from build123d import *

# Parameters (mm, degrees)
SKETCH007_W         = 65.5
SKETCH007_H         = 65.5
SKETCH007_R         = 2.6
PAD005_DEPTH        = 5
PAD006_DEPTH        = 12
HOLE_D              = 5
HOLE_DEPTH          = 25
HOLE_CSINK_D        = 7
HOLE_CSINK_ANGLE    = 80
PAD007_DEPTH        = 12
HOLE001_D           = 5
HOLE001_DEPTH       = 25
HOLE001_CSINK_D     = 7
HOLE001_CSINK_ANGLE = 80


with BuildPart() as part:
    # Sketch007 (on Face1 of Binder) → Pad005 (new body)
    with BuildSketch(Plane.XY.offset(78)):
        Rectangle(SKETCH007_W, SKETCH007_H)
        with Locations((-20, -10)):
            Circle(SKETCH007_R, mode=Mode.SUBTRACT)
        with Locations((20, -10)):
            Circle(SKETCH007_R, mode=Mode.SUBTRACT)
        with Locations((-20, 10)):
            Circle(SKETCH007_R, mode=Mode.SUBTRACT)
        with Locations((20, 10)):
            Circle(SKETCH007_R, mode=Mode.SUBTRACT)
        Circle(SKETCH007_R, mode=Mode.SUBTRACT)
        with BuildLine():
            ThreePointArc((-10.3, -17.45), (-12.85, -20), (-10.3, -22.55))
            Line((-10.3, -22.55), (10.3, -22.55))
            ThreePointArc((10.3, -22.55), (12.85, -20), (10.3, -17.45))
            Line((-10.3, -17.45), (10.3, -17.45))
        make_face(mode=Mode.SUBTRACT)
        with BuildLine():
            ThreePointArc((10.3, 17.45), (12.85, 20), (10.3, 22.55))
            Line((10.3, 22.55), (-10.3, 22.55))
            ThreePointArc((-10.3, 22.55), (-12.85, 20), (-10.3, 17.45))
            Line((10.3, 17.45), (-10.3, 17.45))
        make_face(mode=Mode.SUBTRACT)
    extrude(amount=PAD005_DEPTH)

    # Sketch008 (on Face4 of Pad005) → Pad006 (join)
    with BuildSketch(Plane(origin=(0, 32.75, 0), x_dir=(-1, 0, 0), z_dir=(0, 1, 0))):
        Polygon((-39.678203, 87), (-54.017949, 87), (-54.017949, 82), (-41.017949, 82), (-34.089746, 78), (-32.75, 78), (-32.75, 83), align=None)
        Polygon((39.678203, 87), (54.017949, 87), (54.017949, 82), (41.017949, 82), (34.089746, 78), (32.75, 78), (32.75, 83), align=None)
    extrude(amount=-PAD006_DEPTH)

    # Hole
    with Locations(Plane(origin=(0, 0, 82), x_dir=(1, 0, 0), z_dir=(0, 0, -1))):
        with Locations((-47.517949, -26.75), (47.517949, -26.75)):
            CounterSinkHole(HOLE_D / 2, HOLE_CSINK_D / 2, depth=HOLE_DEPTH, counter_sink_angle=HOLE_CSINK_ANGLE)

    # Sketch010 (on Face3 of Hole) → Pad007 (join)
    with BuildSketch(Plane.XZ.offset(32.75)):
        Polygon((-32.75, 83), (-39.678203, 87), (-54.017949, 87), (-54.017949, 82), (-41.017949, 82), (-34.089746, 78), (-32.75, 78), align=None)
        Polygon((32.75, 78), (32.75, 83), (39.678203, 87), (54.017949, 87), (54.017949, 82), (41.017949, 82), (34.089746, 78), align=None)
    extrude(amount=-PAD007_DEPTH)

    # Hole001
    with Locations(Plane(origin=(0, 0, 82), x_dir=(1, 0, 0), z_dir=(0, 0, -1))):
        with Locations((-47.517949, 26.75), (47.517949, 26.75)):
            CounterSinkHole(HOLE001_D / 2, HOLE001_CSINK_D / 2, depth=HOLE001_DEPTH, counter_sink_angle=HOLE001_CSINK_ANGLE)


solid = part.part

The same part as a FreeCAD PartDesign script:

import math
import FreeCAD as App
import Part
import Sketcher

V = App.Vector
Q = App.Units.Quantity

doc = App.newDocument("Part")
body = doc.addObject("PartDesign::Body", "Body")

sketch1 = body.newObject("Sketcher::SketchObject", "Sketch")
sketch1.AttachmentSupport = (doc.getObject("XY_Plane"), [""])
sketch1.MapMode = "FlatFace"
sketch1.AttachmentOffset = App.Placement(V(0, 0, 78), App.Rotation())
sketch1.addGeometry(Part.LineSegment(V(-32.8, 32.8, 0), V(-32.8, -32.8, 0)), False)
sketch1.addGeometry(Part.LineSegment(V(-32.8, -32.8, 0), V(32.8, -32.8, 0)), False)
sketch1.addGeometry(Part.LineSegment(V(32.8, -32.8, 0), V(32.8, 32.8, 0)), False)
sketch1.addGeometry(Part.LineSegment(V(32.8, 32.8, 0), V(-32.8, 32.8, 0)), False)
sketch1.addGeometry(Part.Circle(V(-20, -10, 0), V(0, 0, 1), 2.6), False)
sketch1.addGeometry(Part.ArcOfCircle(Part.Circle(V(-10.3, -20, 0), V(0, 0, 1), 2.5), math.radians(90), math.radians(270)), False)
sketch1.addGeometry(Part.LineSegment(V(-10.3, -17.4, 0), V(10.3, -17.4, 0)), False)
sketch1.addGeometry(Part.ArcOfCircle(Part.Circle(V(10.3, -20, 0), V(0, 0, 1), 2.5), math.radians(-90), math.radians(90)), False)
sketch1.addGeometry(Part.LineSegment(V(10.3, -22.6, 0), V(-10.3, -22.6, 0)), False)
sketch1.addGeometry(Part.Circle(V(20, -10, 0), V(0, 0, 1), 2.6), False)
sketch1.addGeometry(Part.Circle(V(-20, 10, 0), V(0, 0, 1), 2.6), False)
sketch1.addGeometry(Part.Circle(V(0, 0, 0), V(0, 0, 1), 2.6), False)
sketch1.addGeometry(Part.Circle(V(20, 10, 0), V(0, 0, 1), 2.6), False)
sketch1.addGeometry(Part.ArcOfCircle(Part.Circle(V(10.3, 20, 0), V(0, 0, 1), 2.5), math.radians(-90), math.radians(90)), False)
sketch1.addGeometry(Part.LineSegment(V(10.3, 17.4, 0), V(-10.3, 17.4, 0)), False)
sketch1.addGeometry(Part.ArcOfCircle(Part.Circle(V(-10.3, 20, 0), V(0, 0, 1), 2.5), math.radians(90), math.radians(270)), False)
sketch1.addGeometry(Part.LineSegment(V(-10.3, 22.6, 0), V(10.3, 22.6, 0)), False)
sketch1.addConstraint(Sketcher.Constraint("Coincident", 0, 2, 1, 1))
sketch1.addConstraint(Sketcher.Constraint("Coincident", 1, 2, 2, 1))
sketch1.addConstraint(Sketcher.Constraint("Coincident", 2, 2, 3, 1))
sketch1.addConstraint(Sketcher.Constraint("Coincident", 3, 2, 0, 1))
sketch1.addConstraint(Sketcher.Constraint("Tangent", 5, 1, 6, 1))
sketch1.addConstraint(Sketcher.Constraint("Tangent", 6, 2, 7, 2))
sketch1.addConstraint(Sketcher.Constraint("Tangent", 7, 1, 8, 1))
sketch1.addConstraint(Sketcher.Constraint("Tangent", 8, 2, 5, 2))
sketch1.addConstraint(Sketcher.Constraint("Tangent", 13, 1, 14, 1))
sketch1.addConstraint(Sketcher.Constraint("Tangent", 14, 2, 15, 2))
sketch1.addConstraint(Sketcher.Constraint("Tangent", 15, 1, 16, 1))
sketch1.addConstraint(Sketcher.Constraint("Tangent", 16, 2, 13, 2))
sketch1.addConstraint(Sketcher.Constraint("Vertical", 0))
sketch1.addConstraint(Sketcher.Constraint("Horizontal", 1))
sketch1.addConstraint(Sketcher.Constraint("Vertical", 2))
sketch1.addConstraint(Sketcher.Constraint("Horizontal", 3))
sketch1.addConstraint(Sketcher.Constraint("Horizontal", 6))
sketch1.addConstraint(Sketcher.Constraint("Horizontal", 8))
sketch1.addConstraint(Sketcher.Constraint("Horizontal", 14))
sketch1.addConstraint(Sketcher.Constraint("Horizontal", 16))
sketch1.addConstraint(Sketcher.Constraint("Coincident", 11, 3, -1, 1))
sketch1.addConstraint(Sketcher.Constraint("Equal", 4, 9))
sketch1.addConstraint(Sketcher.Constraint("Equal", 9, 10))
sketch1.addConstraint(Sketcher.Constraint("Equal", 10, 11))
sketch1.addConstraint(Sketcher.Constraint("Equal", 11, 12))
sketch1.addConstraint(Sketcher.Constraint("Equal", 7, 13))
sketch1.addConstraint(Sketcher.Constraint("Symmetric", 9, 3, 10, 3, -1, 1))
sketch1.addConstraint(Sketcher.Constraint("Symmetric", 4, 3, 12, 3, -1, 1))
sketch1.addConstraint(Sketcher.Constraint("Symmetric", 5, 3, 13, 3, -1, 1))
sketch1.addConstraint(Sketcher.Constraint("Symmetric", 0, 2, 2, 2, -1, 1))
sketch1.addConstraint(Sketcher.Constraint("Symmetric", 4, 3, 9, 3, -2))
sketch1.addConstraint(Sketcher.Constraint("Vertical", 7, 3, 13, 3))
sketch1.addConstraint(Sketcher.Constraint("Vertical", 5, 3, 15, 3))
sketch1.addConstraint(Sketcher.Constraint("Equal", 3, 0))
sketch1.addConstraint(Sketcher.Constraint("Diameter", 4, 5.2))
sketch1.addConstraint(Sketcher.Constraint("Radius", 5, 2.55))
sketch1.addConstraint(Sketcher.Constraint("DistanceX", 1, 1, 1, 2, 65.5))
sketch1.addConstraint(Sketcher.Constraint("DistanceX", 6, 1, 6, 2, 20.6))
sketch1.addConstraint(Sketcher.Constraint("DistanceX", 4, 3, -1, 1, 20.0))
sketch1.addConstraint(Sketcher.Constraint("DistanceY", 4, 3, -1, 1, 10.0))
sketch1.addConstraint(Sketcher.Constraint("DistanceY", 5, 3, -1, 1, 20.0))
pad1 = body.newObject("PartDesign::Pad", "Pad")
pad1.Profile = sketch1
pad1.Length = 5

sketch2 = body.newObject("Sketcher::SketchObject", "Sketch001")
sketch2.AttachmentSupport = (doc.getObject("XZ_Plane"), [""])
sketch2.MapMode = "FlatFace"
sketch2.AttachmentOffset = App.Placement(V(0, 0, -32.75), App.Rotation())
sketch2.addGeometry(Part.LineSegment(V(39.7, 87, 0), V(54, 87, 0)), False)
sketch2.addGeometry(Part.LineSegment(V(54, 87, 0), V(54, 82, 0)), False)
sketch2.addGeometry(Part.LineSegment(V(54, 82, 0), V(41, 82, 0)), False)
sketch2.addGeometry(Part.LineSegment(V(41, 82, 0), V(34.1, 78, 0)), False)
sketch2.addGeometry(Part.LineSegment(V(34.1, 78, 0), V(32.8, 78, 0)), False)
sketch2.addGeometry(Part.LineSegment(V(32.8, 78, 0), V(32.8, 83, 0)), False)
sketch2.addGeometry(Part.LineSegment(V(32.8, 83, 0), V(39.7, 87, 0)), False)
sketch2.addGeometry(Part.LineSegment(V(-54, 87, 0), V(-39.7, 87, 0)), False)
sketch2.addGeometry(Part.LineSegment(V(-39.7, 87, 0), V(-32.8, 83, 0)), False)
sketch2.addGeometry(Part.LineSegment(V(-32.8, 83, 0), V(-32.8, 78, 0)), False)
sketch2.addGeometry(Part.LineSegment(V(-32.8, 78, 0), V(-34.1, 78, 0)), False)
sketch2.addGeometry(Part.LineSegment(V(-34.1, 78, 0), V(-41, 82, 0)), False)
sketch2.addGeometry(Part.LineSegment(V(-41, 82, 0), V(-54, 82, 0)), False)
sketch2.addGeometry(Part.LineSegment(V(-54, 82, 0), V(-54, 87, 0)), False)
sketch2.addConstraint(Sketcher.Constraint("Coincident", 0, 2, 1, 1))
sketch2.addConstraint(Sketcher.Constraint("Coincident", 1, 2, 2, 1))
sketch2.addConstraint(Sketcher.Constraint("Coincident", 2, 2, 3, 1))
sketch2.addConstraint(Sketcher.Constraint("Coincident", 3, 2, 4, 1))
sketch2.addConstraint(Sketcher.Constraint("Coincident", 4, 2, 5, 1))
sketch2.addConstraint(Sketcher.Constraint("Coincident", 5, 2, 6, 1))
sketch2.addConstraint(Sketcher.Constraint("Coincident", 6, 2, 0, 1))
sketch2.addConstraint(Sketcher.Constraint("Coincident", 7, 2, 8, 1))
sketch2.addConstraint(Sketcher.Constraint("Coincident", 8, 2, 9, 1))
sketch2.addConstraint(Sketcher.Constraint("Coincident", 9, 2, 10, 1))
sketch2.addConstraint(Sketcher.Constraint("Coincident", 10, 2, 11, 1))
sketch2.addConstraint(Sketcher.Constraint("Coincident", 11, 2, 12, 1))
sketch2.addConstraint(Sketcher.Constraint("Coincident", 12, 2, 13, 1))
sketch2.addConstraint(Sketcher.Constraint("Coincident", 13, 2, 7, 1))
sketch2.addConstraint(Sketcher.Constraint("Horizontal", 0))
sketch2.addConstraint(Sketcher.Constraint("Vertical", 1))
sketch2.addConstraint(Sketcher.Constraint("Horizontal", 2))
sketch2.addConstraint(Sketcher.Constraint("Horizontal", 4))
sketch2.addConstraint(Sketcher.Constraint("Vertical", 5))
sketch2.addConstraint(Sketcher.Constraint("Horizontal", 7))
sketch2.addConstraint(Sketcher.Constraint("Vertical", 9))
sketch2.addConstraint(Sketcher.Constraint("Horizontal", 10))
sketch2.addConstraint(Sketcher.Constraint("Horizontal", 12))
sketch2.addConstraint(Sketcher.Constraint("Vertical", 13))
sketch2.addConstraint(Sketcher.Constraint("Symmetric", 6, 2, 7, 2, -2))
sketch2.addConstraint(Sketcher.Constraint("Symmetric", 5, 2, 8, 2, -2))
sketch2.addConstraint(Sketcher.Constraint("Symmetric", 3, 2, 10, 2, -2))
sketch2.addConstraint(Sketcher.Constraint("Symmetric", 2, 2, 11, 2, -2))
sketch2.addConstraint(Sketcher.Constraint("Parallel", 3, 6))
sketch2.addConstraint(Sketcher.Constraint("Equal", 0, 7))
sketch2.addConstraint(Sketcher.Constraint("Equal", 1, 5))
sketch2.addConstraint(Sketcher.Constraint("DistanceX", 2, 2, 2, 1, 13.0))
sketch2.addConstraint(Sketcher.Constraint("DistanceY", 1, 2, 1, 1, 5.0))
sketch2.addConstraint(Sketcher.Constraint("Angle", 3, Q("-149.999999 deg")))
sketch2.addConstraint(Sketcher.Constraint("Distance", 3, 8.0))
sketch2.addConstraint(Sketcher.Constraint("DistanceY", -1, 1, 0, 2, 87.0))
sketch2.addConstraint(Sketcher.Constraint("DistanceX", 8, 2, 5, 2, 65.5))
sketch2.addConstraint(Sketcher.Constraint("DistanceX", 0, 1, 0, 2, 14.339746))
pad2 = body.newObject("PartDesign::Pad", "Pad001")
pad2.Profile = sketch2
pad2.Length = 12

sketch3 = body.newObject("Sketcher::SketchObject", "Sketch002")
sketch3.AttachmentSupport = (doc.getObject("XY_Plane"), [""])
sketch3.MapMode = "FlatFace"
sketch3.AttachmentOffset = App.Placement(V(0, 0, 82), App.Rotation())
sketch3.addGeometry(Part.Circle(V(-47.5, 26.8, 0), V(0, 0, 1), 2.5), False)
sketch3.addGeometry(Part.Circle(V(47.5, 26.8, 0), V(0, 0, 1), 2.5), False)
sketch3.addConstraint(Sketcher.Constraint("Equal", 0, 1))
sketch3.addConstraint(Sketcher.Constraint("Symmetric", 0, 3, 1, 3, -2))
sketch3.addConstraint(Sketcher.Constraint("Diameter", 0, 5.0))
sketch3.addConstraint(Sketcher.Constraint("DistanceY", -1, 1, 0, 3, 26.75))
sketch3.addConstraint(Sketcher.Constraint("DistanceX", 0, 3, 1, 3, 95.035898))
doc.recompute()
hole = body.newObject("PartDesign::Hole", "Hole")
hole.Profile = sketch3
hole.ThreadType = "None"
hole.Diameter = 5
hole.DepthType = "Dimension"
hole.Depth = 25
hole.DrillPoint = "Flat"
hole.HoleCutType = "Countersink"
hole.HoleCutDiameter = 7
hole.HoleCutCountersinkAngle = 80
hole.Reversed = True

sketch4 = body.newObject("Sketcher::SketchObject", "Sketch003")
sketch4.AttachmentSupport = (doc.getObject("XZ_Plane"), [""])
sketch4.MapMode = "FlatFace"
sketch4.AttachmentOffset = App.Placement(V(0, 0, 32.75), App.Rotation())
sketch4.addGeometry(Part.LineSegment(V(-32.8, 83, 0), V(-39.7, 87, 0)), False)
sketch4.addGeometry(Part.LineSegment(V(-39.7, 87, 0), V(-54, 87, 0)), False)
sketch4.addGeometry(Part.LineSegment(V(-54, 87, 0), V(-54, 82, 0)), False)
sketch4.addGeometry(Part.LineSegment(V(-54, 82, 0), V(-41, 82, 0)), False)
sketch4.addGeometry(Part.LineSegment(V(-41, 82, 0), V(-34.1, 78, 0)), False)
sketch4.addGeometry(Part.LineSegment(V(-34.1, 78, 0), V(-32.8, 78, 0)), False)
sketch4.addGeometry(Part.LineSegment(V(-32.8, 78, 0), V(-32.8, 83, 0)), False)
sketch4.addGeometry(Part.LineSegment(V(32.8, 83, 0), V(32.8, 78, 0)), False)
sketch4.addGeometry(Part.LineSegment(V(32.8, 78, 0), V(34.1, 78, 0)), False)
sketch4.addGeometry(Part.LineSegment(V(34.1, 78, 0), V(41, 82, 0)), False)
sketch4.addGeometry(Part.LineSegment(V(41, 82, 0), V(54, 82, 0)), False)
sketch4.addGeometry(Part.LineSegment(V(54, 82, 0), V(54, 87, 0)), False)
sketch4.addGeometry(Part.LineSegment(V(54, 87, 0), V(39.7, 87, 0)), False)
sketch4.addGeometry(Part.LineSegment(V(39.7, 87, 0), V(32.8, 83, 0)), False)
sketch4.addConstraint(Sketcher.Constraint("Coincident", 0, 2, 1, 1))
sketch4.addConstraint(Sketcher.Constraint("Coincident", 1, 2, 2, 1))
sketch4.addConstraint(Sketcher.Constraint("Coincident", 2, 2, 3, 1))
sketch4.addConstraint(Sketcher.Constraint("Coincident", 3, 2, 4, 1))
sketch4.addConstraint(Sketcher.Constraint("Coincident", 4, 2, 5, 1))
sketch4.addConstraint(Sketcher.Constraint("Coincident", 5, 2, 6, 1))
sketch4.addConstraint(Sketcher.Constraint("Coincident", 6, 2, 0, 1))
sketch4.addConstraint(Sketcher.Constraint("Coincident", 7, 2, 8, 1))
sketch4.addConstraint(Sketcher.Constraint("Coincident", 8, 2, 9, 1))
sketch4.addConstraint(Sketcher.Constraint("Coincident", 9, 2, 10, 1))
sketch4.addConstraint(Sketcher.Constraint("Coincident", 10, 2, 11, 1))
sketch4.addConstraint(Sketcher.Constraint("Coincident", 11, 2, 12, 1))
sketch4.addConstraint(Sketcher.Constraint("Coincident", 12, 2, 13, 1))
sketch4.addConstraint(Sketcher.Constraint("Coincident", 13, 2, 7, 1))
sketch4.addConstraint(Sketcher.Constraint("Horizontal", 1))
sketch4.addConstraint(Sketcher.Constraint("Vertical", 2))
sketch4.addConstraint(Sketcher.Constraint("Horizontal", 3))
sketch4.addConstraint(Sketcher.Constraint("Horizontal", 5))
sketch4.addConstraint(Sketcher.Constraint("Vertical", 6))
sketch4.addConstraint(Sketcher.Constraint("Vertical", 7))
sketch4.addConstraint(Sketcher.Constraint("Horizontal", 8))
sketch4.addConstraint(Sketcher.Constraint("Horizontal", 10))
sketch4.addConstraint(Sketcher.Constraint("Vertical", 11))
sketch4.addConstraint(Sketcher.Constraint("Horizontal", 12))
sketch4.addConstraint(Sketcher.Constraint("Symmetric", 5, 2, 7, 2, -2))
sketch4.addConstraint(Sketcher.Constraint("Symmetric", 3, 2, 9, 2, -2))
sketch4.addConstraint(Sketcher.Constraint("Symmetric", 1, 2, 11, 2, -2))
sketch4.addConstraint(Sketcher.Constraint("Parallel", 0, 4))
sketch4.addConstraint(Sketcher.Constraint("Parallel", 9, 13))
sketch4.addConstraint(Sketcher.Constraint("Horizontal", 6, 2, 13, 2))
sketch4.addConstraint(Sketcher.Constraint("Equal", 5, 8))
sketch4.addConstraint(Sketcher.Constraint("Equal", 2, 6))
sketch4.addConstraint(Sketcher.Constraint("DistanceX", 3, 1, 3, 2, 13.0))
sketch4.addConstraint(Sketcher.Constraint("DistanceY", 2, 2, 2, 1, 5.0))
sketch4.addConstraint(Sketcher.Constraint("Angle", 0, Q("149.999999 deg")))
sketch4.addConstraint(Sketcher.Constraint("Distance", 0, 8.0))
sketch4.addConstraint(Sketcher.Constraint("DistanceY", -1, 1, 0, 2, 87.0))
sketch4.addConstraint(Sketcher.Constraint("DistanceX", 5, 2, 7, 2, 65.5))
sketch4.addConstraint(Sketcher.Constraint("DistanceX", 1, 2, 1, 1, 14.339746))
pad3 = body.newObject("PartDesign::Pad", "Pad002")
pad3.Profile = sketch4
pad3.Length = 12
pad3.Reversed = True

sketch5 = body.newObject("Sketcher::SketchObject", "Sketch004")
sketch5.AttachmentSupport = (doc.getObject("XY_Plane"), [""])
sketch5.MapMode = "FlatFace"
sketch5.AttachmentOffset = App.Placement(V(0, 0, 82), App.Rotation())
sketch5.addGeometry(Part.Circle(V(-47.5, -26.8, 0), V(0, 0, 1), 2.5), False)
sketch5.addGeometry(Part.Circle(V(47.5, -26.8, 0), V(0, 0, 1), 2.5), False)
sketch5.addConstraint(Sketcher.Constraint("Equal", 0, 1))
sketch5.addConstraint(Sketcher.Constraint("Symmetric", 0, 3, 1, 3, -2))
sketch5.addConstraint(Sketcher.Constraint("Diameter", 0, 5.0))
sketch5.addConstraint(Sketcher.Constraint("DistanceY", 0, 3, -1, 1, 26.75))
sketch5.addConstraint(Sketcher.Constraint("DistanceX", 0, 3, 1, 3, 95.035898))
doc.recompute()
hole2 = body.newObject("PartDesign::Hole", "Hole001")
hole2.Profile = sketch5
hole2.ThreadType = "None"
hole2.Diameter = 5
hole2.DepthType = "Dimension"
hole2.Depth = 25
hole2.DrillPoint = "Flat"
hole2.HoleCutType = "Countersink"
hole2.HoleCutDiameter = 7
hole2.HoleCutCountersinkAngle = 80
hole2.Reversed = True

doc.recompute()
